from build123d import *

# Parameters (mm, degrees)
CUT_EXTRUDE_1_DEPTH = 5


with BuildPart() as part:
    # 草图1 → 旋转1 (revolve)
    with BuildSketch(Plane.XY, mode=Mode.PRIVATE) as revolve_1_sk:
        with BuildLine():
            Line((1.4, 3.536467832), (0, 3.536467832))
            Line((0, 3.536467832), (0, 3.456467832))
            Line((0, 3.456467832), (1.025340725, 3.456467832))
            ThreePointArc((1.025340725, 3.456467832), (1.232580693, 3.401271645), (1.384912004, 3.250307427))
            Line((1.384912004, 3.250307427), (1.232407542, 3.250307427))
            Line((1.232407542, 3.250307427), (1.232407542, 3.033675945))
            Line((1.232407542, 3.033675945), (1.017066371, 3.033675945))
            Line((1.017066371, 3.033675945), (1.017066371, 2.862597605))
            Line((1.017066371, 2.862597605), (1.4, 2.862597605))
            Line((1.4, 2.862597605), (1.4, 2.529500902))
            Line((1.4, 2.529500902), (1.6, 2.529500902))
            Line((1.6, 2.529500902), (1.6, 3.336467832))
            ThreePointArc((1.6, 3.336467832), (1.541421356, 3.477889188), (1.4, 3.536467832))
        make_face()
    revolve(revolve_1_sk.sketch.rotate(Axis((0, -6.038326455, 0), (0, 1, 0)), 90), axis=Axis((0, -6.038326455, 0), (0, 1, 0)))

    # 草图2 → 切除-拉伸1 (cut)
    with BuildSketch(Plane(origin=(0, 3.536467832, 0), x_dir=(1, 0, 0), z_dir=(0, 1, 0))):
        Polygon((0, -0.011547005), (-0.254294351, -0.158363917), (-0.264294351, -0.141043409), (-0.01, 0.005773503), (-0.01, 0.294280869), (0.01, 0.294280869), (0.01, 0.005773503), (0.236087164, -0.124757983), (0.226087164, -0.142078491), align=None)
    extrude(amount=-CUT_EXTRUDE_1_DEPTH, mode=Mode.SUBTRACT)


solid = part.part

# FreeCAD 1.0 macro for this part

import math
import FreeCAD as App
import Part
import Sketcher
from FreeCAD import Vector
Q = App.Units.Quantity

doc = App.newDocument("Part")
body = doc.addObject("PartDesign::Body", "Body")

sketch1 = doc.addObject("Sketcher::SketchObject", "Sketch")
body.addObject(sketch1)
sketch1.AttachmentSupport = (doc.XY_Plane, [""])
sketch1.MapMode = "FlatFace"
sketch1.addGeometry([
    Part.LineSegment(Vector(1.4, 3.54, 0), Vector(0, 3.54, 0)),
    Part.LineSegment(Vector(0, 3.54, 0), Vector(0, 3.46, 0)),
    Part.LineSegment(Vector(0, 3.46, 0), Vector(1.03, 3.46, 0)),
    Part.ArcOfCircle(Part.Circle(Vector(1.03, 3.04, 0), Vector(0, 0, 1), 0.42), math.radians(30), math.radians(90)),
    Part.LineSegment(Vector(1.38, 3.25, 0), Vector(1.23, 3.25, 0)),
    Part.LineSegment(Vector(1.23, 3.25, 0), Vector(1.23, 3.03, 0)),
    Part.LineSegment(Vector(1.23, 3.03, 0), Vector(1.02, 3.03, 0)),
    Part.LineSegment(Vector(1.02, 3.03, 0), Vector(1.02, 2.86, 0)),
    Part.LineSegment(Vector(1.02, 2.86, 0), Vector(1.4, 2.86, 0)),
    Part.LineSegment(Vector(1.4, 2.86, 0), Vector(1.4, 2.53, 0)),
    Part.LineSegment(Vector(1.4, 2.53, 0), Vector(1.6, 2.53, 0)),
    Part.LineSegment(Vector(1.6, 2.53, 0), Vector(1.6, 3.34, 0)),
    Part.ArcOfCircle(Part.Circle(Vector(1.4, 3.34, 0), Vector(0, 0, 1), 0.2), math.radians(0), math.radians(90)),
], False)
sketch1.addConstraint([
    Sketcher.Constraint("Coincident", 0, 2, 1, 1),
    Sketcher.Constraint("Coincident", 1, 2, 2, 1),
    Sketcher.Constraint("Tangent", 2, 2, 3, 2),
    Sketcher.Constraint("Coincident", 3, 1, 4, 1),
    Sketcher.Constraint("Coincident", 4, 2, 5, 1),
    Sketcher.Constraint("Coincident", 5, 2, 6, 1),
    Sketcher.Constraint("Coincident", 6, 2, 7, 1),
    Sketcher.Constraint("Coincident", 7, 2, 8, 1),
    Sketcher.Constraint("Coincident", 8, 2, 9, 1),
    Sketcher.Constraint("Coincident", 9, 2, 10, 1),
    Sketcher.Constraint("Coincident", 10, 2, 11, 1),
    Sketcher.Constraint("Tangent", 11, 2, 12, 1),
    Sketcher.Constraint("Tangent", 12, 2, 0, 1),
    Sketcher.Constraint("Horizontal", 0),
    Sketcher.Constraint("Vertical", 1),
    Sketcher.Constraint("Horizontal", 2),
    Sketcher.Constraint("Horizontal", 4),
    Sketcher.Constraint("Vertical", 5),
    Sketcher.Constraint("Horizontal", 6),
    Sketcher.Constraint("Vertical", 7),
    Sketcher.Constraint("Horizontal", 8),
    Sketcher.Constraint("Vertical", 9),
    Sketcher.Constraint("Horizontal", 10),
    Sketcher.Constraint("Vertical", 11),
    Sketcher.Constraint("PointOnObject", 0, 2, -2),
    Sketcher.Constraint("Vertical", 12, 3, 8, 2),
    Sketcher.Constraint("Radius", 12, 0.2),
    Sketcher.Constraint("DistanceX", 0, 2, 0, 1, 1.4),
    Sketcher.Constraint("DistanceY", 1, 2, 1, 1, 0.08),
    Sketcher.Constraint("Radius", 3, 0.41665),
    Sketcher.Constraint("DistanceX", 2, 1, 2, 2, 1.025341),
    Sketcher.Constraint("DistanceX", 6, 2, 6, 1, 0.215341),
    Sketcher.Constraint("DistanceY", 5, 2, 5, 1, 0.216631),
    Sketcher.Constraint("DistanceY", 7, 2, 7, 1, 0.171078),
    Sketcher.Constraint("DistanceY", -1, 1, 9, 2, 2.529501),
    Sketcher.Constraint("DistanceX", 4, 2, 4, 1, 0.152504),
    Sketcher.Constraint("DistanceX", 8, 1, 8, 2, 0.382934),
    Sketcher.Constraint("DistanceY", 9, 2, 9, 1, 0.333097),
])
revolution = doc.addObject("PartDesign::Revolution", "Revolution")
body.addObject(revolution)
revolution.Profile = sketch1
revolution.ReferenceAxis = (sketch1, ["V_Axis"])
revolution.Angle = 360

sketch2 = doc.addObject("Sketcher::SketchObject", "Sketch001")
body.addObject(sketch2)
sketch2.AttachmentSupport = (doc.XZ_Plane, [""])
sketch2.MapMode = "FlatFace"
sketch2.AttachmentOffset = App.Placement(Vector(0, 0, -3.536468), App.Rotation())
sketch2.addGeometry([
    Part.LineSegment(Vector(-0.254, 0.158, 0), Vector(0, 0.012, 0)),
    Part.LineSegment(Vector(0, 0.012, 0), Vector(0.226, 0.142, 0)),
    Part.LineSegment(Vector(0.226, 0.142, 0), Vector(0.236, 0.125, 0)),
    Part.LineSegment(Vector(0.236, 0.125, 0), Vector(0.01, -0.006, 0)),
    Part.LineSegment(Vector(0.01, -0.006, 0), Vector(0.01, -0.294, 0)),
    Part.LineSegment(Vector(0.01, -0.294, 0), Vector(-0.01, -0.294, 0)),
    Part.LineSegment(Vector(-0.01, -0.294, 0), Vector(-0.01, -0.006, 0)),
    Part.LineSegment(Vector(-0.01, -0.006, 0), Vector(-0.264, 0.141, 0)),
    Part.LineSegment(Vector(-0.264, 0.141, 0), Vector(-0.254, 0.158, 0)),
], False)
sketch2.addConstraint([
    Sketcher.Constraint("Coincident", 0, 2, 1, 1),
    Sketcher.Constraint("Coincident", 1, 2, 2, 1),
    Sketcher.Constraint("Coincident", 2, 2, 3, 1),
    Sketcher.Constraint("Coincident", 3, 2, 4, 1),
    Sketcher.Constraint("Coincident", 4, 2, 5, 1),
    Sketcher.Constraint("Coincident", 5, 2, 6, 1),
    Sketcher.Constraint("Coincident", 6, 2, 7, 1),
    Sketcher.Constraint("Coincident", 7, 2, 8, 1),
    Sketcher.Constraint("Coincident", 8, 2, 0, 1),
    Sketcher.Constraint("Vertical", 4),
    Sketcher.Constraint("Horizontal", 5),
    Sketcher.Constraint("Vertical", 6),
    Sketcher.Constraint("Symmetric", 3, 2, 6, 2, -2),
    Sketcher.Constraint("PointOnObject", 0, 2, -2),
    Sketcher.Constraint("Perpendicular", 1, 2),
    Sketcher.Constraint("Perpendicular", 2, 3),
    Sketcher.Constraint("Parallel", 0, 7),
    Sketcher.Constraint("Perpendicular", 7, 8),
    Sketcher.Constraint("Equal", 1, 3),
    Sketcher.Constraint("Equal", 0, 7),
    Sketcher.Constraint("Angle", 0, Q("-30 deg")),
    Sketcher.Constraint("DistanceX", 5, 2, 5, 1, 0.02),
    Sketcher.Constraint("DistanceY", 4, 2, 4, 1, 0.288507),
    Sketcher.Constraint("DistanceY", -1, 1, 1, 2, 0.142078),
    Sketcher.Constraint("DistanceY", 4, 2, -1, 1, 0.294281),
    Sketcher.Constraint("DistanceX", 7, 2, 1, 2, 0.490382),
])
pocket1 = doc.addObject("PartDesign::Pocket", "Pocket")
body.addObject(pocket1)
pocket1.Profile = sketch2
pocket1.Length = 5
pocket1.Reversed = True

doc.recompute()
